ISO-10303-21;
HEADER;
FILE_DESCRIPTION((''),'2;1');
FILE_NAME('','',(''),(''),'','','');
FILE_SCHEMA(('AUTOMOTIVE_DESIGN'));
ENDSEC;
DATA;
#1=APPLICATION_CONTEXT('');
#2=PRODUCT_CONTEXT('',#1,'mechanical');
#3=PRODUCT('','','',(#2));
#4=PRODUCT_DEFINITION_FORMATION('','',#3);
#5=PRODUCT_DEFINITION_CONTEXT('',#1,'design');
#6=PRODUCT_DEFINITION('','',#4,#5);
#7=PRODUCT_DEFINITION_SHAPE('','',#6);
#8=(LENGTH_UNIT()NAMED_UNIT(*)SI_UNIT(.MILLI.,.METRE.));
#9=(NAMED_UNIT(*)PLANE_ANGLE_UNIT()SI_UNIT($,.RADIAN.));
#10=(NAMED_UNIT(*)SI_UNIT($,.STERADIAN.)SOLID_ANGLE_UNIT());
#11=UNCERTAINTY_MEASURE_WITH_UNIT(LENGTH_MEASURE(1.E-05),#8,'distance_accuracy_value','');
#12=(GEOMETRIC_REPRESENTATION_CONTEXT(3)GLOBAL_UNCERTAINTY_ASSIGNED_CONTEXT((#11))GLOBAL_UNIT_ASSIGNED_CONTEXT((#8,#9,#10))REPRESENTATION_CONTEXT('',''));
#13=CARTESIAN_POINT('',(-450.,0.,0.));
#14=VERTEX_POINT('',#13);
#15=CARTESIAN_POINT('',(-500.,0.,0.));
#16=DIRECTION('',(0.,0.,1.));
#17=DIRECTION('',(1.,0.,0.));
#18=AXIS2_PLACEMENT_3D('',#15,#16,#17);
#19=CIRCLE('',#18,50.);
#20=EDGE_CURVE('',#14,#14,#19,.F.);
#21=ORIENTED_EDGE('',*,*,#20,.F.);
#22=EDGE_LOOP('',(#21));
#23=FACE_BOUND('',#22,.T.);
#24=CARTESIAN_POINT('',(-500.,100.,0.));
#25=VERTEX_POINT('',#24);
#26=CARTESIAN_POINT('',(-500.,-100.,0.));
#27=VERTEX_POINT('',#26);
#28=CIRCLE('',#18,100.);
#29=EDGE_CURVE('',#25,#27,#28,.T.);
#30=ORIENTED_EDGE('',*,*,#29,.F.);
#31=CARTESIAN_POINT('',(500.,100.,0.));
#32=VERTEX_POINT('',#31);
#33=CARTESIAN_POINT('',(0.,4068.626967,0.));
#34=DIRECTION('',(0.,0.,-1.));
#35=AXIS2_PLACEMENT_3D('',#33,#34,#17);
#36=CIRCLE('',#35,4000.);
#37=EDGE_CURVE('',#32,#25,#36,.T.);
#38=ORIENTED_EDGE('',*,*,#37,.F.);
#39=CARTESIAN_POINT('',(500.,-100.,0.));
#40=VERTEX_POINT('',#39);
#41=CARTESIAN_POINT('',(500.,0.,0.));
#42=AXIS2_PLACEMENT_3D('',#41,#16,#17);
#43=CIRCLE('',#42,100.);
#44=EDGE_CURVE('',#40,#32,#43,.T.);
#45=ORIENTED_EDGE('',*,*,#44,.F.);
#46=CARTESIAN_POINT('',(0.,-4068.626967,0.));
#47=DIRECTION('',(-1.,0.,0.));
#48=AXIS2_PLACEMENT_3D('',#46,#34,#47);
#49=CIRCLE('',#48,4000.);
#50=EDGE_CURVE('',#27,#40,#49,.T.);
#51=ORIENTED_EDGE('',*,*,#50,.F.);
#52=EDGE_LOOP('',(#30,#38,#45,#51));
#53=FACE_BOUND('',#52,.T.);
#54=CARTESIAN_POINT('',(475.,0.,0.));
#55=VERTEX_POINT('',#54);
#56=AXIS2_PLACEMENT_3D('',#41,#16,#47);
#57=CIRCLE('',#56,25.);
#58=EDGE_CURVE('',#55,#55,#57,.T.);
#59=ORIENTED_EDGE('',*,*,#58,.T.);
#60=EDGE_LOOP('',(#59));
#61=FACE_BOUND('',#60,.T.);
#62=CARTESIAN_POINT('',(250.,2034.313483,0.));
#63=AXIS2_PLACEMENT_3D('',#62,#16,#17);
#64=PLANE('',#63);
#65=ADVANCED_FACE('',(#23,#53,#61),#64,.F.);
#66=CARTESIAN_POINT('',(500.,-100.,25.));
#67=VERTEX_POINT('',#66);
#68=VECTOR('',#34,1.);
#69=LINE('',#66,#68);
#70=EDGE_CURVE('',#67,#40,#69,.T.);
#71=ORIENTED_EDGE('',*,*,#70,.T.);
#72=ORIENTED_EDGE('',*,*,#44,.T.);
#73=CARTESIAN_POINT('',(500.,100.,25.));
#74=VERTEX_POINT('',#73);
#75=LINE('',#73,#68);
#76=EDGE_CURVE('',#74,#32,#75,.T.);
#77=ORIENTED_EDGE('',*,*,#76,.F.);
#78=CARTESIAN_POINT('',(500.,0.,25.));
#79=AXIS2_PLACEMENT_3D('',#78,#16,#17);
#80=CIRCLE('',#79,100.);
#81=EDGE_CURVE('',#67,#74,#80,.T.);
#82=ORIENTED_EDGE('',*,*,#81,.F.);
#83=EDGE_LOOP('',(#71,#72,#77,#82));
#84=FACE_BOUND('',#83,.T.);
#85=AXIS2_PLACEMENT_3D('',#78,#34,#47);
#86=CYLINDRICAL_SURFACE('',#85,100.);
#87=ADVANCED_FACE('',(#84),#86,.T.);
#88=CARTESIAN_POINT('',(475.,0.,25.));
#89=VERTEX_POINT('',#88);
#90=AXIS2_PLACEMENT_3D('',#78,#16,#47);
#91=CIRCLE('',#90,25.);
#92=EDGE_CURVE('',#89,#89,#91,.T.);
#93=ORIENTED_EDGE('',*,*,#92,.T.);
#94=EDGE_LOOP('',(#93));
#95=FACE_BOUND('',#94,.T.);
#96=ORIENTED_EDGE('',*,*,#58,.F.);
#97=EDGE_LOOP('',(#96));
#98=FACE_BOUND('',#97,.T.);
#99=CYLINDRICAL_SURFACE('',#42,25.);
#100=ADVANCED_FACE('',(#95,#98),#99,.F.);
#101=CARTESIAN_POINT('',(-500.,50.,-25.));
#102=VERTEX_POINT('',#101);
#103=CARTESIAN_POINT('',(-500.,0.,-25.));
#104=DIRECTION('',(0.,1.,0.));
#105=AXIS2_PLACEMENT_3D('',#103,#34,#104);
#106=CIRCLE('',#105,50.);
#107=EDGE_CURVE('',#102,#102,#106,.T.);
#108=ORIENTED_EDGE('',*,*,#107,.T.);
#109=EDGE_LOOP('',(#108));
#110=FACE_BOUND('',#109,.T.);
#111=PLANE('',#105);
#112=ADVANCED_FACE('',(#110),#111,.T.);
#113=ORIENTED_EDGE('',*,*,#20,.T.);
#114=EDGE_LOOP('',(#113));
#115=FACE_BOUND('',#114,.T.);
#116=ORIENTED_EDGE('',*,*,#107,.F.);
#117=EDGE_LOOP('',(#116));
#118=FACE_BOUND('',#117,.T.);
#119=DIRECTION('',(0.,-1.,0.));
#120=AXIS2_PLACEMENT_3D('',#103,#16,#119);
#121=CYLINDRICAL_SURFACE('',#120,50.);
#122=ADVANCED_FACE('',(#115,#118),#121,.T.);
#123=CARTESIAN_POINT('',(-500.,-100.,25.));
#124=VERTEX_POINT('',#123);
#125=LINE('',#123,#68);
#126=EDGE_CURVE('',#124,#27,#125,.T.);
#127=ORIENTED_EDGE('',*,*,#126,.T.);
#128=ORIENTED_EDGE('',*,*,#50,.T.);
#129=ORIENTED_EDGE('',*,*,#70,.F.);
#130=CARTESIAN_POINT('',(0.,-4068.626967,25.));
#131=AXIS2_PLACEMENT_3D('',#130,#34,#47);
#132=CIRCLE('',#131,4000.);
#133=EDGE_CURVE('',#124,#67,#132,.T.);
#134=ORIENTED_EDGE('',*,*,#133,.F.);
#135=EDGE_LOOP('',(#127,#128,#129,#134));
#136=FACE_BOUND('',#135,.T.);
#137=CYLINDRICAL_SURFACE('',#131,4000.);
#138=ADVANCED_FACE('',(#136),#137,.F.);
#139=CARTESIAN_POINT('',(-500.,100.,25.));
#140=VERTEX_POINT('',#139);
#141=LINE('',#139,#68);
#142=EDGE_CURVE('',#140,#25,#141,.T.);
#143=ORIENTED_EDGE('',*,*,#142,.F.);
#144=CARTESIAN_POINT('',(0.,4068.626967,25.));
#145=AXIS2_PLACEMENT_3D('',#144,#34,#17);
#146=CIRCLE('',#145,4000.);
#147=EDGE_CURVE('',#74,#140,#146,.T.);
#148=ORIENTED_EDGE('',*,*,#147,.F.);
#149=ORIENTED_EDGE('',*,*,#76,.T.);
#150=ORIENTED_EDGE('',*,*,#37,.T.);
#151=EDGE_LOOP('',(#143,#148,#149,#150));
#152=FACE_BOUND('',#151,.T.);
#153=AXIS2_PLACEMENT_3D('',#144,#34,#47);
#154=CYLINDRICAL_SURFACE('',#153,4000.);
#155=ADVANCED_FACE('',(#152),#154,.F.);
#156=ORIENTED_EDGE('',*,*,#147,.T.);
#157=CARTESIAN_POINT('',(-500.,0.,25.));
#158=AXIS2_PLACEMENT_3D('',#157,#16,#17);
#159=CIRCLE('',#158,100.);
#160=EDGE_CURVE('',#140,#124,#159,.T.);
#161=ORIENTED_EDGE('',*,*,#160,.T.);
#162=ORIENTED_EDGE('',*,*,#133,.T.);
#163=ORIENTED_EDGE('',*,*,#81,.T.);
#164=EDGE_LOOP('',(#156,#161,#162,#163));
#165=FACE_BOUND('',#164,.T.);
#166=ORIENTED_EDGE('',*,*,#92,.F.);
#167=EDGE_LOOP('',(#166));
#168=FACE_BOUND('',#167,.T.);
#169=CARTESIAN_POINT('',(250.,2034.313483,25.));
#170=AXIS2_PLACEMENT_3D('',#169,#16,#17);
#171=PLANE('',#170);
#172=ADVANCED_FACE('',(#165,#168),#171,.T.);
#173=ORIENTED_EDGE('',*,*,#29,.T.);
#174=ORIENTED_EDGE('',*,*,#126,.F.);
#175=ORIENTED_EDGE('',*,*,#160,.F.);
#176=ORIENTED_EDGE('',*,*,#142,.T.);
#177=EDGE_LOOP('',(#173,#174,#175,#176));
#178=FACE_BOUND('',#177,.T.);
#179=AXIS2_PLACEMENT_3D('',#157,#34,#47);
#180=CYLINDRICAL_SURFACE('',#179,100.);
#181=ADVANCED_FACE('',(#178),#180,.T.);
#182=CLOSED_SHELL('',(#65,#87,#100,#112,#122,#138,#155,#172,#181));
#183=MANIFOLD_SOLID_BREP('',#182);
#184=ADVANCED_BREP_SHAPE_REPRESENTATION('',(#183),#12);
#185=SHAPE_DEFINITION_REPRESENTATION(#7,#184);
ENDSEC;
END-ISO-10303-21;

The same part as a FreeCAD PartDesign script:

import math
import FreeCAD as App
import Part
import Sketcher

V = App.Vector
Q = App.Units.Quantity

doc = App.newDocument("Part")
params = doc.addObject("Spreadsheet::Sheet", "Params")
for row, (alias, value) in enumerate([
    ("sketch1_radius", "100 mm"),
    ("sketch1_radius2", "4000 mm"),
    ("pad1_length", "25 mm"),
    ("sketch2_diameter", "100 mm"),
    ("pad2_length", "25 mm"),
    ("sketch3_diameter", "50 mm"),
    ("pocket1_length", "25 mm"),
], start=1):
    params.set(f"A{row}", alias)
    params.set(f"B{row}", "=" + value)
    params.setAlias(f"B{row}", alias)

body = doc.addObject("PartDesign::Body", "Body")

# Sketch on XY plane
sketch1 = body.newObject("Sketcher::SketchObject", "Sketch")
sketch1.AttachmentSupport = (doc.getObject("XY_Plane"), [""])
sketch1.MapMode = "FlatFace"
sketch1.addGeometry(Part.ArcOfCircle(Part.Circle(V(-500, 0, 0), V(0, 0, 1), 100), math.radians(90), math.radians(270)), False)
sketch1.addGeometry(Part.ArcOfCircle(Part.Circle(V(0, -4068.626967, 0), V(0, 0, 1), 4000), math.radians(82.819244), math.radians(97.180756)), False)
sketch1.addGeometry(Part.ArcOfCircle(Part.Circle(V(500, 0, 0), V(0, 0, 1), 100), math.radians(-90), math.radians(90)), False)
sketch1.addGeometry(Part.ArcOfCircle(Part.Circle(V(0, 4068.626967, 0), V(0, 0, 1), 4000), math.radians(-97.180756), math.radians(-82.819244)), False)
sketch1.addConstraint(Sketcher.Constraint("Coincident", 0, 2, 1, 2))
sketch1.addConstraint(Sketcher.Constraint("Coincident", 1, 1, 2, 1))
sketch1.addConstraint(Sketcher.Constraint("Coincident", 2, 2, 3, 2))
sketch1.addConstraint(Sketcher.Constraint("Coincident", 3, 1, 0, 1))
sketch1.addConstraint(Sketcher.Constraint("Equal", 0, 2))
sketch1.addConstraint(Sketcher.Constraint("Equal", 1, 3))
sketch1.addConstraint(Sketcher.Constraint("Symmetric", 0, 3, 2, 3, -1, 1))
sketch1.addConstraint(Sketcher.Constraint("Symmetric", 1, 3, 3, 3, -1, 1))
sketch1.addConstraint(Sketcher.Constraint("PointOnObject", 0, 3, -1))
sketch1.addConstraint(Sketcher.Constraint("PointOnObject", 1, 3, -2))
sketch1.addConstraint(Sketcher.Constraint("Vertical", 2, 3, 1, 1))
sketch1.addConstraint(Sketcher.Constraint("Radius", 0, Q("100 mm")))
sketch1.addConstraint(Sketcher.Constraint("Radius", 1, Q("4000 mm")))
sketch1.addConstraint(Sketcher.Constraint("DistanceX", 0, 3, -1, 1, Q("500 mm")))
sketch1.setExpression("Constraints[11]", "Params.sketch1_radius")
sketch1.setExpression("Constraints[12]", "Params.sketch1_radius2")
pad1 = body.newObject("PartDesign::Pad", "Pad")
pad1.Profile = sketch1
pad1.setExpression("Length", "Params.pad1_length")

# Sketch on XY plane
sketch2 = body.newObject("Sketcher::SketchObject", "Sketch001")
sketch2.AttachmentSupport = (doc.getObject("XY_Plane"), [""])
sketch2.MapMode = "FlatFace"
sketch2.addGeometry(Part.Circle(V(-500, 0, 0), V(0, 0, 1), 50), False)
sketch2.addConstraint(Sketcher.Constraint("PointOnObject", 0, 3, -1))
sketch2.addConstraint(Sketcher.Constraint("Diameter", 0, Q("100 mm")))
sketch2.addConstraint(Sketcher.Constraint("DistanceX", 0, 3, -1, 1, Q("500 mm")))
sketch2.setExpression("Constraints[1]", "Params.sketch2_diameter")
pad2 = body.newObject("PartDesign::Pad", "Pad001")
pad2.Profile = sketch2
pad2.setExpression("Length", "Params.pad2_length")
pad2.Reversed = True

# Sketch on XY plane
sketch3 = body.newObject("Sketcher::SketchObject", "Sketch002")
sketch3.AttachmentSupport = (doc.getObject("XY_Plane"), [""])
sketch3.MapMode = "FlatFace"
sketch3.AttachmentOffset = App.Placement(V(0, 0, 25), App.Rotation())
sketch3.addGeometry(Part.Circle(V(500, 0, 0), V(0, 0, 1), 25), False)
sketch3.addConstraint(Sketcher.Constraint("PointOnObject", 0, 3, -1))
sketch3.addConstraint(Sketcher.Constraint("Diameter", 0, Q("50 mm")))
sketch3.addConstraint(Sketcher.Constraint("DistanceX", -1, 1, 0, 3, Q("500 mm")))
sketch3.setExpression("Constraints[1]", "Params.sketch3_diameter")
pocket1 = body.newObject("PartDesign::Pocket", "Pocket")
pocket1.Profile = sketch3
pocket1.setExpression("Length", "Params.pocket1_length")

doc.recompute()
